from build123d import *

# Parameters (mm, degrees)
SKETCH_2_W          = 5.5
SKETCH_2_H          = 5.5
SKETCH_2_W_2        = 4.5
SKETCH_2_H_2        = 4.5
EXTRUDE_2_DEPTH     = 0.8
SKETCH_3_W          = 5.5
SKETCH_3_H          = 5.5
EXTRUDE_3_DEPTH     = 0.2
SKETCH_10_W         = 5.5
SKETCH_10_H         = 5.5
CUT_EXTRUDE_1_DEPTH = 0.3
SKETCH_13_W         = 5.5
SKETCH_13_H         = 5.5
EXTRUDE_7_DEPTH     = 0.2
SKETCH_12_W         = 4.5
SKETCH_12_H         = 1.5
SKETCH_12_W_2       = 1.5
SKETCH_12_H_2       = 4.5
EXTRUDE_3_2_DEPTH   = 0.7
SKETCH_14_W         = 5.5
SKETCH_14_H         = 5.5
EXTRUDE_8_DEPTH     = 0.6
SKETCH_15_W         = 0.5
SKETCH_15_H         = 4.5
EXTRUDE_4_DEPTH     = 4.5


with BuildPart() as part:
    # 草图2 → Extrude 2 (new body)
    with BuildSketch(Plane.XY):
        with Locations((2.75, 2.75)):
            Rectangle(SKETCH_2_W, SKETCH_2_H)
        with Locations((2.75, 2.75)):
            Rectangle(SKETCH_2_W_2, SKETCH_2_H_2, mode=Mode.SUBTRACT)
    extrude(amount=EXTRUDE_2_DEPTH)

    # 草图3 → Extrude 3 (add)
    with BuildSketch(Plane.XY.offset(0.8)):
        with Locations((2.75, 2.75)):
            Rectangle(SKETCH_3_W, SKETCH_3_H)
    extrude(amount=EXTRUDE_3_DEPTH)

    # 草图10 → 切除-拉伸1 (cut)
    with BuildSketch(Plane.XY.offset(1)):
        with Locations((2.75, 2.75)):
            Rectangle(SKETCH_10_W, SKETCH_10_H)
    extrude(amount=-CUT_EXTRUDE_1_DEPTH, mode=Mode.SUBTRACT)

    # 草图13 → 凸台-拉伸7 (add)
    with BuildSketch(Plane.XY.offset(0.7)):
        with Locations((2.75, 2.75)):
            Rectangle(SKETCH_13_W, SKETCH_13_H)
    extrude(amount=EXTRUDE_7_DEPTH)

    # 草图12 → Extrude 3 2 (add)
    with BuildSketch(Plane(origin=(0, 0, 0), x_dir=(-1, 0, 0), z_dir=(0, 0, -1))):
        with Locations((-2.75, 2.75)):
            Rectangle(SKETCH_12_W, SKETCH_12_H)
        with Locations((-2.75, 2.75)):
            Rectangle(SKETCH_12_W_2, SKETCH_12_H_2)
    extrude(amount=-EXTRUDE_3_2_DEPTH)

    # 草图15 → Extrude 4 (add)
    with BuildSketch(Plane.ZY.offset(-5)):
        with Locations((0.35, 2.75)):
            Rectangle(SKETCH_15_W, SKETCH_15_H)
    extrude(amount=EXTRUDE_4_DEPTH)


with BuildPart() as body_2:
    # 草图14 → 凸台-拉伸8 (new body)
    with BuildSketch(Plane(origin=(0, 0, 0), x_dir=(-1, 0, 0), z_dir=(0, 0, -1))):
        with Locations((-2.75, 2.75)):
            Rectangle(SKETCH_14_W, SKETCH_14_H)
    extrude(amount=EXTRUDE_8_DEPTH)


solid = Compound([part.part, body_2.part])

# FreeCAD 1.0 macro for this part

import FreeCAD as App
import Part
import Sketcher
from FreeCAD import Vector

doc = App.newDocument("Part")
params = doc.addObject("Spreadsheet::Sheet", "Params")
for row, (alias, value) in enumerate([
    ("sketch1_width", "5.5 mm"),
    ("sketch1_width2", "4.5 mm"),
    ("pad1_length", "0.8 mm"),
    ("sketch2_width", "5.5 mm"),
    ("pad2_length", "0.2 mm"),
    ("sketch3_width", "5.5 mm"),
    ("pocket1_length", "0.3 mm"),
    ("sketch4_width", "5.5 mm"),
    ("pad3_length", "0.2 mm"),
    ("sketch5_width", "1.5 mm"),
    ("pad4_length", "0.7 mm"),
    ("sketch6_width", "4.5 mm"),
    ("sketch6_height", "0.5 mm"),
    ("pad5_length", "4.5 mm"),
    ("sketch7_width", "5.5 mm"),
    ("pad6_length", "0.6 mm"),
], start=1):
    params.set(f"A{row}", alias)
    params.set(f"B{row}", "=" + value)
    params.setAlias(f"B{row}", alias)

body = doc.addObject("PartDesign::Body", "Body")

# Sketch on XY plane
sketch1 = body.newObject("Sketcher::SketchObject", "Sketch")
sketch1.AttachmentSupport = (doc.getObject("XY_Plane"), [""])
sketch1.MapMode = "FlatFace"
sketch1.addGeometry(Part.LineSegment(Vector(0, 5.5, 0), Vector(0, 0, 0)), False)
sketch1.addGeometry(Part.LineSegment(Vector(0, 0, 0), Vector(5.5, 0, 0)), False)
sketch1.addGeometry(Part.LineSegment(Vector(5.5, 0, 0), Vector(5.5, 5.5, 0)), False)
sketch1.addGeometry(Part.LineSegment(Vector(5.5, 5.5, 0), Vector(0, 5.5, 0)), False)
sketch1.addGeometry(Part.LineSegment(Vector(5, 0.5, 0), Vector(0.5, 0.5, 0)), False)
sketch1.addGeometry(Part.LineSegment(Vector(0.5, 0.5, 0), Vector(0.5, 5, 0)), False)
sketch1.addGeometry(Part.LineSegment(Vector(0.5, 5, 0), Vector(5, 5, 0)), False)
sketch1.addGeometry(Part.LineSegment(Vector(5, 5, 0), Vector(5, 0.5, 0)), False)
sketch1.addConstraint(Sketcher.Constraint("Coincident", 0, 2, 1, 1))
sketch1.addConstraint(Sketcher.Constraint("Coincident", 1, 2, 2, 1))
sketch1.addConstraint(Sketcher.Constraint("Coincident", 2, 2, 3, 1))
sketch1.addConstraint(Sketcher.Constraint("Coincident", 3, 2, 0, 1))
sketch1.addConstraint(Sketcher.Constraint("Coincident", 4, 2, 5, 1))
sketch1.addConstraint(Sketcher.Constraint("Coincident", 5, 2, 6, 1))
sketch1.addConstraint(Sketcher.Constraint("Coincident", 6, 2, 7, 1))
sketch1.addConstraint(Sketcher.Constraint("Coincident", 7, 2, 4, 1))
sketch1.addConstraint(Sketcher.Constraint("Vertical", 0))
sketch1.addConstraint(Sketcher.Constraint("Horizontal", 1))
sketch1.addConstraint(Sketcher.Constraint("Vertical", 2))
sketch1.addConstraint(Sketcher.Constraint("Horizontal", 3))
sketch1.addConstraint(Sketcher.Constraint("Horizontal", 4))
sketch1.addConstraint(Sketcher.Constraint("Vertical", 5))
sketch1.addConstraint(Sketcher.Constraint("Horizontal", 6))
sketch1.addConstraint(Sketcher.Constraint("Vertical", 7))
sketch1.addConstraint(Sketcher.Constraint("Coincident", 0, 2, -1, 1))
sketch1.addConstraint(Sketcher.Constraint("Equal", 3, 0))
sketch1.addConstraint(Sketcher.Constraint("Equal", 6, 5))
sketch1.addConstraint(Sketcher.Constraint("DistanceX", 1, 1, 1, 2, 5.5))
sketch1.addConstraint(Sketcher.Constraint("DistanceX", 4, 2, 4, 1, 4.5))
sketch1.addConstraint(Sketcher.Constraint("DistanceY", -1, 1, 5, 2, 5.0))
sketch1.addConstraint(Sketcher.Constraint("DistanceX", -1, 1, 6, 2, 5.0))
sketch1.setExpression("Constraints[19]", "Params.sketch1_width")
sketch1.setExpression("Constraints[20]", "Params.sketch1_width2")
pad1 = body.newObject("PartDesign::Pad", "Pad")
pad1.Profile = sketch1
pad1.setExpression("Length", "Params.pad1_length")

# Sketch on XY plane
sketch2 = body.newObject("Sketcher::SketchObject", "Sketch001")
sketch2.AttachmentSupport = (doc.getObject("XY_Plane"), [""])
sketch2.MapMode = "FlatFace"
sketch2.AttachmentOffset = App.Placement(Vector(0, 0, 0.8), App.Rotation())
sketch2.addGeometry(Part.LineSegment(Vector(0, 6, 0), Vector(0, 0, 0)), False)
sketch2.addGeometry(Part.LineSegment(Vector(0, 0, 0), Vector(6, 0, 0)), False)
sketch2.addGeometry(Part.LineSegment(Vector(6, 0, 0), Vector(6, 6, 0)), False)
sketch2.addGeometry(Part.LineSegment(Vector(6, 6, 0), Vector(0, 6, 0)), False)
sketch2.addConstraint(Sketcher.Constraint("Coincident", 0, 2, 1, 1))
sketch2.addConstraint(Sketcher.Constraint("Coincident", 1, 2, 2, 1))
sketch2.addConstraint(Sketcher.Constraint("Coincident", 2, 2, 3, 1))
sketch2.addConstraint(Sketcher.Constraint("Coincident", 3, 2, 0, 1))
sketch2.addConstraint(Sketcher.Constraint("Vertical", 0))
sketch2.addConstraint(Sketcher.Constraint("Horizontal", 1))
sketch2.addConstraint(Sketcher.Constraint("Vertical", 2))
sketch2.addConstraint(Sketcher.Constraint("Horizontal", 3))
sketch2.addConstraint(Sketcher.Constraint("Coincident", 0, 2, -1, 1))
sketch2.addConstraint(Sketcher.Constraint("Equal", 3, 0))
sketch2.addConstraint(Sketcher.Constraint("DistanceX", 1, 1, 1, 2, 5.5))
sketch2.setExpression("Constraints[10]", "Params.sketch2_width")
pad2 = body.newObject("PartDesign::Pad", "Pad001")
pad2.Profile = sketch2
pad2.setExpression("Length", "Params.pad2_length")

# Sketch on XY plane
sketch3 = body.newObject("Sketcher::SketchObject", "Sketch002")
sketch3.AttachmentSupport = (doc.getObject("XY_Plane"), [""])
sketch3.MapMode = "FlatFace"
sketch3.AttachmentOffset = App.Placement(Vector(0, 0, 1), App.Rotation())
sketch3.addGeometry(Part.LineSegment(Vector(0, 6, 0), Vector(0, 0, 0)), False)
sketch3.addGeometry(Part.LineSegment(Vector(0, 0, 0), Vector(6, 0, 0)), False)
sketch3.addGeometry(Part.LineSegment(Vector(6, 0, 0), Vector(6, 6, 0)), False)
sketch3.addGeometry(Part.LineSegment(Vector(6, 6, 0), Vector(0, 6, 0)), False)
sketch3.addConstraint(Sketcher.Constraint("Coincident", 0, 2, 1, 1))
sketch3.addConstraint(Sketcher.Constraint("Coincident", 1, 2, 2, 1))
sketch3.addConstraint(Sketcher.Constraint("Coincident", 2, 2, 3, 1))
sketch3.addConstraint(Sketcher.Constraint("Coincident", 3, 2, 0, 1))
sketch3.addConstraint(Sketcher.Constraint("Vertical", 0))
sketch3.addConstraint(Sketcher.Constraint("Horizontal", 1))
sketch3.addConstraint(Sketcher.Constraint("Vertical", 2))
sketch3.addConstraint(Sketcher.Constraint("Horizontal", 3))
sketch3.addConstraint(Sketcher.Constraint("Coincident", 0, 2, -1, 1))
sketch3.addConstraint(Sketcher.Constraint("Equal", 3, 0))
sketch3.addConstraint(Sketcher.Constraint("DistanceX", 1, 1, 1, 2, 5.5))
sketch3.setExpression("Constraints[10]", "Params.sketch3_width")
pocket1 = body.newObject("PartDesign::Pocket", "Pocket")
pocket1.Profile = sketch3
pocket1.setExpression("Length", "Params.pocket1_length")

# Sketch on XY plane
sketch4 = body.newObject("Sketcher::SketchObject", "Sketch003")
sketch4.AttachmentSupport = (doc.getObject("XY_Plane"), [""])
sketch4.MapMode = "FlatFace"
sketch4.AttachmentOffset = App.Placement(Vector(0, 0, 0.7), App.Rotation())
sketch4.addGeometry(Part.LineSegment(Vector(0, 6, 0), Vector(0, 0, 0)), False)
sketch4.addGeometry(Part.LineSegment(Vector(0, 0, 0), Vector(6, 0, 0)), False)
sketch4.addGeometry(Part.LineSegment(Vector(6, 0, 0), Vector(6, 6, 0)), False)
sketch4.addGeometry(Part.LineSegment(Vector(6, 6, 0), Vector(0, 6, 0)), False)
sketch4.addConstraint(Sketcher.Constraint("Coincident", 0, 2, 1, 1))
sketch4.addConstraint(Sketcher.Constraint("Coincident", 1, 2, 2, 1))
sketch4.addConstraint(Sketcher.Constraint("Coincident", 2, 2, 3, 1))
sketch4.addConstraint(Sketcher.Constraint("Coincident", 3, 2, 0, 1))
sketch4.addConstraint(Sketcher.Constraint("Vertical", 0))
sketch4.addConstraint(Sketcher.Constraint("Horizontal", 1))
sketch4.addConstraint(Sketcher.Constraint("Vertical", 2))
sketch4.addConstraint(Sketcher.Constraint("Horizontal", 3))
sketch4.addConstraint(Sketcher.Constraint("Coincident", 0, 2, -1, 1))
sketch4.addConstraint(Sketcher.Constraint("Equal", 3, 0))
sketch4.addConstraint(Sketcher.Constraint("DistanceX", 1, 1, 1, 2, 5.5))
sketch4.setExpression("Constraints[10]", "Params.sketch4_width")
pad3 = body.newObject("PartDesign::Pad", "Pad002")
pad3.Profile = sketch4
pad3.setExpression("Length", "Params.pad3_length")

# Sketch on XY plane
sketch5 = body.newObject("Sketcher::SketchObject", "Sketch004")
sketch5.AttachmentSupport = (doc.getObject("XY_Plane"), [""])
sketch5.MapMode = "FlatFace"
sketch5.addGeometry(Part.LineSegment(Vector(5, 3.5, 0), Vector(5, 2, 0)), False)
sketch5.addGeometry(Part.LineSegment(Vector(5, 2, 0), Vector(3.5, 2, 0)), False)
sketch5.addGeometry(Part.LineSegment(Vector(3.5, 2, 0), Vector(3.5, 0.5, 0)), False)
sketch5.addGeometry(Part.LineSegment(Vector(3.5, 0.5, 0), Vector(2, 0.5, 0)), False)
sketch5.addGeometry(Part.LineSegment(Vector(2, 0.5, 0), Vector(2, 2, 0)), False)
sketch5.addGeometry(Part.LineSegment(Vector(2, 2, 0), Vector(0.5, 2, 0)), False)
sketch5.addGeometry(Part.LineSegment(Vector(0.5, 2, 0), Vector(0.5, 3.5, 0)), False)
sketch5.addGeometry(Part.LineSegment(Vector(0.5, 3.5, 0), Vector(2, 3.5, 0)), False)
sketch5.addGeometry(Part.LineSegment(Vector(2, 3.5, 0), Vector(2, 5, 0)), False)
sketch5.addGeometry(Part.LineSegment(Vector(2, 5, 0), Vector(3.5, 5, 0)), False)
sketch5.addGeometry(Part.LineSegment(Vector(3.5, 5, 0), Vector(3.5, 3.5, 0)), False)
sketch5.addGeometry(Part.LineSegment(Vector(3.5, 3.5, 0), Vector(5, 3.5, 0)), False)
sketch5.addConstraint(Sketcher.Constraint("Coincident", 0, 2, 1, 1))
sketch5.addConstraint(Sketcher.Constraint("Coincident", 1, 2, 2, 1))
sketch5.addConstraint(Sketcher.Constraint("Coincident", 2, 2, 3, 1))
sketch5.addConstraint(Sketcher.Constraint("Coincident", 3, 2, 4, 1))
sketch5.addConstraint(Sketcher.Constraint("Coincident", 4, 2, 5, 1))
sketch5.addConstraint(Sketcher.Constraint("Coincident", 5, 2, 6, 1))
sketch5.addConstraint(Sketcher.Constraint("Coincident", 6, 2, 7, 1))
sketch5.addConstraint(Sketcher.Constraint("Coincident", 7, 2, 8, 1))
sketch5.addConstraint(Sketcher.Constraint("Coincident", 8, 2, 9, 1))
sketch5.addConstraint(Sketcher.Constraint("Coincident", 9, 2, 10, 1))
sketch5.addConstraint(Sketcher.Constraint("Coincident", 10, 2, 11, 1))
sketch5.addConstraint(Sketcher.Constraint("Coincident", 11, 2, 0, 1))
sketch5.addConstraint(Sketcher.Constraint("Vertical", 0))
sketch5.addConstraint(Sketcher.Constraint("Horizontal", 1))
sketch5.addConstraint(Sketcher.Constraint("Vertical", 2))
sketch5.addConstraint(Sketcher.Constraint("Horizontal", 3))
sketch5.addConstraint(Sketcher.Constraint("Vertical", 4))
sketch5.addConstraint(Sketcher.Constraint("Horizontal", 5))
sketch5.addConstraint(Sketcher.Constraint("Vertical", 6))
sketch5.addConstraint(Sketcher.Constraint("Horizontal", 7))
sketch5.addConstraint(Sketcher.Constraint("Vertical", 8))
sketch5.addConstraint(Sketcher.Constraint("Horizontal", 9))
sketch5.addConstraint(Sketcher.Constraint("Vertical", 10))
sketch5.addConstraint(Sketcher.Constraint("Horizontal", 11))
sketch5.addConstraint(Sketcher.Constraint("Horizontal", 1, 2, 4, 2))
sketch5.addConstraint(Sketcher.Constraint("Horizontal", 7, 2, 10, 2))
sketch5.addConstraint(Sketcher.Constraint("Vertical", 4, 2, 7, 2))
sketch5.addConstraint(Sketcher.Constraint("Vertical", 2, 2, 9, 2))
sketch5.addConstraint(Sketcher.Constraint("Equal", 1, 3))
sketch5.addConstraint(Sketcher.Constraint("Equal", 3, 5))
sketch5.addConstraint(Sketcher.Constraint("Equal", 11, 0))
sketch5.addConstraint(Sketcher.Constraint("Equal", 0, 2))
sketch5.addConstraint(Sketcher.Constraint("Equal", 6, 8))
sketch5.addConstraint(Sketcher.Constraint("DistanceX", 1, 2, 1, 1, 1.5))
sketch5.addConstraint(Sketcher.Constraint("DistanceX", -1, 1, 0, 2, 5.0))
sketch5.addConstraint(Sketcher.Constraint("DistanceY", -1, 1, 0, 2, 2.0))
sketch5.setExpression("Constraints[33]", "Params.sketch5_width")
pad4 = body.newObject("PartDesign::Pad", "Pad003")
pad4.Profile = sketch5
pad4.setExpression("Length", "Params.pad4_length")

# Sketch on YZ plane
sketch6 = body.newObject("Sketcher::SketchObject", "Sketch005")
sketch6.AttachmentSupport = (doc.getObject("YZ_Plane"), [""])
sketch6.MapMode = "FlatFace"
sketch6.AttachmentOffset = App.Placement(Vector(0, 0, 5), App.Rotation())
sketch6.addGeometry(Part.LineSegment(Vector(5, 0.1, 0), Vector(0.5, 0.1, 0)), False)
sketch6.addGeometry(Part.LineSegment(Vector(0.5, 0.1, 0), Vector(0.5, 0.6, 0)), False)
sketch6.addGeometry(Part.LineSegment(Vector(0.5, 0.6, 0), Vector(5, 0.6, 0)), False)
sketch6.addGeometry(Part.LineSegment(Vector(5, 0.6, 0), Vector(5, 0.1, 0)), False)
sketch6.addConstraint(Sketcher.Constraint("Coincident", 0, 2, 1, 1))
sketch6.addConstraint(Sketcher.Constraint("Coincident", 1, 2, 2, 1))
sketch6.addConstraint(Sketcher.Constraint("Coincident", 2, 2, 3, 1))
sketch6.addConstraint(Sketcher.Constraint("Coincident", 3, 2, 0, 1))
sketch6.addConstraint(Sketcher.Constraint("Horizontal", 0))
sketch6.addConstraint(Sketcher.Constraint("Vertical", 1))
sketch6.addConstraint(Sketcher.Constraint("Horizontal", 2))
sketch6.addConstraint(Sketcher.Constraint("Vertical", 3))
sketch6.addConstraint(Sketcher.Constraint("DistanceX", 0, 2, 0, 1, 4.5))
sketch6.addConstraint(Sketcher.Constraint("DistanceY", 1, 1, 1, 2, 0.5))
sketch6.addConstraint(Sketcher.Constraint("DistanceX", -1, 1, 2, 2, 5.0))
sketch6.addConstraint(Sketcher.Constraint("DistanceY", -1, 1, 0, 2, 0.1))
sketch6.setExpression("Constraints[8]", "Params.sketch6_width")
sketch6.setExpression("Constraints[9]", "Params.sketch6_height")
pad5 = body.newObject("PartDesign::Pad", "Pad004")
pad5.Profile = sketch6
pad5.setExpression("Length", "Params.pad5_length")
pad5.Reversed = True
body2 = doc.addObject("PartDesign::Body", "Body001")

# Sketch on XY plane
sketch7 = body2.newObject("Sketcher::SketchObject", "Sketch006")
sketch7.AttachmentSupport = (doc.getObject("XY_Plane001"), [""])
sketch7.MapMode = "FlatFace"
sketch7.addGeometry(Part.LineSegment(Vector(6, 6, 0), Vector(6, 0, 0)), False)
sketch7.addGeometry(Part.LineSegment(Vector(6, 0, 0), Vector(0, 0, 0)), False)
sketch7.addGeometry(Part.LineSegment(Vector(0, 0, 0), Vector(0, 6, 0)), False)
sketch7.addGeometry(Part.LineSegment(Vector(0, 6, 0), Vector(6, 6, 0)), False)
sketch7.addConstraint(Sketcher.Constraint("Coincident", 0, 2, 1, 1))
sketch7.addConstraint(Sketcher.Constraint("Coincident", 1, 2, 2, 1))
sketch7.addConstraint(Sketcher.Constraint("Coincident", 2, 2, 3, 1))
sketch7.addConstraint(Sketcher.Constraint("Coincident", 3, 2, 0, 1))
sketch7.addConstraint(Sketcher.Constraint("Vertical", 0))
sketch7.addConstraint(Sketcher.Constraint("Horizontal", 1))
sketch7.addConstraint(Sketcher.Constraint("Vertical", 2))
sketch7.addConstraint(Sketcher.Constraint("Horizontal", 3))
sketch7.addConstraint(Sketcher.Constraint("Coincident", 1, 2, -1, 1))
sketch7.addConstraint(Sketcher.Constraint("Equal", 3, 0))
sketch7.addConstraint(Sketcher.Constraint("DistanceX", 1, 2, 1, 1, 5.5))
sketch7.setExpression("Constraints[10]", "Params.sketch7_width")
pad6 = body2.newObject("PartDesign::Pad", "Pad005")
pad6.Profile = sketch7
pad6.setExpression("Length", "Params.pad6_length")
pad6.Reversed = True

doc.recompute()
